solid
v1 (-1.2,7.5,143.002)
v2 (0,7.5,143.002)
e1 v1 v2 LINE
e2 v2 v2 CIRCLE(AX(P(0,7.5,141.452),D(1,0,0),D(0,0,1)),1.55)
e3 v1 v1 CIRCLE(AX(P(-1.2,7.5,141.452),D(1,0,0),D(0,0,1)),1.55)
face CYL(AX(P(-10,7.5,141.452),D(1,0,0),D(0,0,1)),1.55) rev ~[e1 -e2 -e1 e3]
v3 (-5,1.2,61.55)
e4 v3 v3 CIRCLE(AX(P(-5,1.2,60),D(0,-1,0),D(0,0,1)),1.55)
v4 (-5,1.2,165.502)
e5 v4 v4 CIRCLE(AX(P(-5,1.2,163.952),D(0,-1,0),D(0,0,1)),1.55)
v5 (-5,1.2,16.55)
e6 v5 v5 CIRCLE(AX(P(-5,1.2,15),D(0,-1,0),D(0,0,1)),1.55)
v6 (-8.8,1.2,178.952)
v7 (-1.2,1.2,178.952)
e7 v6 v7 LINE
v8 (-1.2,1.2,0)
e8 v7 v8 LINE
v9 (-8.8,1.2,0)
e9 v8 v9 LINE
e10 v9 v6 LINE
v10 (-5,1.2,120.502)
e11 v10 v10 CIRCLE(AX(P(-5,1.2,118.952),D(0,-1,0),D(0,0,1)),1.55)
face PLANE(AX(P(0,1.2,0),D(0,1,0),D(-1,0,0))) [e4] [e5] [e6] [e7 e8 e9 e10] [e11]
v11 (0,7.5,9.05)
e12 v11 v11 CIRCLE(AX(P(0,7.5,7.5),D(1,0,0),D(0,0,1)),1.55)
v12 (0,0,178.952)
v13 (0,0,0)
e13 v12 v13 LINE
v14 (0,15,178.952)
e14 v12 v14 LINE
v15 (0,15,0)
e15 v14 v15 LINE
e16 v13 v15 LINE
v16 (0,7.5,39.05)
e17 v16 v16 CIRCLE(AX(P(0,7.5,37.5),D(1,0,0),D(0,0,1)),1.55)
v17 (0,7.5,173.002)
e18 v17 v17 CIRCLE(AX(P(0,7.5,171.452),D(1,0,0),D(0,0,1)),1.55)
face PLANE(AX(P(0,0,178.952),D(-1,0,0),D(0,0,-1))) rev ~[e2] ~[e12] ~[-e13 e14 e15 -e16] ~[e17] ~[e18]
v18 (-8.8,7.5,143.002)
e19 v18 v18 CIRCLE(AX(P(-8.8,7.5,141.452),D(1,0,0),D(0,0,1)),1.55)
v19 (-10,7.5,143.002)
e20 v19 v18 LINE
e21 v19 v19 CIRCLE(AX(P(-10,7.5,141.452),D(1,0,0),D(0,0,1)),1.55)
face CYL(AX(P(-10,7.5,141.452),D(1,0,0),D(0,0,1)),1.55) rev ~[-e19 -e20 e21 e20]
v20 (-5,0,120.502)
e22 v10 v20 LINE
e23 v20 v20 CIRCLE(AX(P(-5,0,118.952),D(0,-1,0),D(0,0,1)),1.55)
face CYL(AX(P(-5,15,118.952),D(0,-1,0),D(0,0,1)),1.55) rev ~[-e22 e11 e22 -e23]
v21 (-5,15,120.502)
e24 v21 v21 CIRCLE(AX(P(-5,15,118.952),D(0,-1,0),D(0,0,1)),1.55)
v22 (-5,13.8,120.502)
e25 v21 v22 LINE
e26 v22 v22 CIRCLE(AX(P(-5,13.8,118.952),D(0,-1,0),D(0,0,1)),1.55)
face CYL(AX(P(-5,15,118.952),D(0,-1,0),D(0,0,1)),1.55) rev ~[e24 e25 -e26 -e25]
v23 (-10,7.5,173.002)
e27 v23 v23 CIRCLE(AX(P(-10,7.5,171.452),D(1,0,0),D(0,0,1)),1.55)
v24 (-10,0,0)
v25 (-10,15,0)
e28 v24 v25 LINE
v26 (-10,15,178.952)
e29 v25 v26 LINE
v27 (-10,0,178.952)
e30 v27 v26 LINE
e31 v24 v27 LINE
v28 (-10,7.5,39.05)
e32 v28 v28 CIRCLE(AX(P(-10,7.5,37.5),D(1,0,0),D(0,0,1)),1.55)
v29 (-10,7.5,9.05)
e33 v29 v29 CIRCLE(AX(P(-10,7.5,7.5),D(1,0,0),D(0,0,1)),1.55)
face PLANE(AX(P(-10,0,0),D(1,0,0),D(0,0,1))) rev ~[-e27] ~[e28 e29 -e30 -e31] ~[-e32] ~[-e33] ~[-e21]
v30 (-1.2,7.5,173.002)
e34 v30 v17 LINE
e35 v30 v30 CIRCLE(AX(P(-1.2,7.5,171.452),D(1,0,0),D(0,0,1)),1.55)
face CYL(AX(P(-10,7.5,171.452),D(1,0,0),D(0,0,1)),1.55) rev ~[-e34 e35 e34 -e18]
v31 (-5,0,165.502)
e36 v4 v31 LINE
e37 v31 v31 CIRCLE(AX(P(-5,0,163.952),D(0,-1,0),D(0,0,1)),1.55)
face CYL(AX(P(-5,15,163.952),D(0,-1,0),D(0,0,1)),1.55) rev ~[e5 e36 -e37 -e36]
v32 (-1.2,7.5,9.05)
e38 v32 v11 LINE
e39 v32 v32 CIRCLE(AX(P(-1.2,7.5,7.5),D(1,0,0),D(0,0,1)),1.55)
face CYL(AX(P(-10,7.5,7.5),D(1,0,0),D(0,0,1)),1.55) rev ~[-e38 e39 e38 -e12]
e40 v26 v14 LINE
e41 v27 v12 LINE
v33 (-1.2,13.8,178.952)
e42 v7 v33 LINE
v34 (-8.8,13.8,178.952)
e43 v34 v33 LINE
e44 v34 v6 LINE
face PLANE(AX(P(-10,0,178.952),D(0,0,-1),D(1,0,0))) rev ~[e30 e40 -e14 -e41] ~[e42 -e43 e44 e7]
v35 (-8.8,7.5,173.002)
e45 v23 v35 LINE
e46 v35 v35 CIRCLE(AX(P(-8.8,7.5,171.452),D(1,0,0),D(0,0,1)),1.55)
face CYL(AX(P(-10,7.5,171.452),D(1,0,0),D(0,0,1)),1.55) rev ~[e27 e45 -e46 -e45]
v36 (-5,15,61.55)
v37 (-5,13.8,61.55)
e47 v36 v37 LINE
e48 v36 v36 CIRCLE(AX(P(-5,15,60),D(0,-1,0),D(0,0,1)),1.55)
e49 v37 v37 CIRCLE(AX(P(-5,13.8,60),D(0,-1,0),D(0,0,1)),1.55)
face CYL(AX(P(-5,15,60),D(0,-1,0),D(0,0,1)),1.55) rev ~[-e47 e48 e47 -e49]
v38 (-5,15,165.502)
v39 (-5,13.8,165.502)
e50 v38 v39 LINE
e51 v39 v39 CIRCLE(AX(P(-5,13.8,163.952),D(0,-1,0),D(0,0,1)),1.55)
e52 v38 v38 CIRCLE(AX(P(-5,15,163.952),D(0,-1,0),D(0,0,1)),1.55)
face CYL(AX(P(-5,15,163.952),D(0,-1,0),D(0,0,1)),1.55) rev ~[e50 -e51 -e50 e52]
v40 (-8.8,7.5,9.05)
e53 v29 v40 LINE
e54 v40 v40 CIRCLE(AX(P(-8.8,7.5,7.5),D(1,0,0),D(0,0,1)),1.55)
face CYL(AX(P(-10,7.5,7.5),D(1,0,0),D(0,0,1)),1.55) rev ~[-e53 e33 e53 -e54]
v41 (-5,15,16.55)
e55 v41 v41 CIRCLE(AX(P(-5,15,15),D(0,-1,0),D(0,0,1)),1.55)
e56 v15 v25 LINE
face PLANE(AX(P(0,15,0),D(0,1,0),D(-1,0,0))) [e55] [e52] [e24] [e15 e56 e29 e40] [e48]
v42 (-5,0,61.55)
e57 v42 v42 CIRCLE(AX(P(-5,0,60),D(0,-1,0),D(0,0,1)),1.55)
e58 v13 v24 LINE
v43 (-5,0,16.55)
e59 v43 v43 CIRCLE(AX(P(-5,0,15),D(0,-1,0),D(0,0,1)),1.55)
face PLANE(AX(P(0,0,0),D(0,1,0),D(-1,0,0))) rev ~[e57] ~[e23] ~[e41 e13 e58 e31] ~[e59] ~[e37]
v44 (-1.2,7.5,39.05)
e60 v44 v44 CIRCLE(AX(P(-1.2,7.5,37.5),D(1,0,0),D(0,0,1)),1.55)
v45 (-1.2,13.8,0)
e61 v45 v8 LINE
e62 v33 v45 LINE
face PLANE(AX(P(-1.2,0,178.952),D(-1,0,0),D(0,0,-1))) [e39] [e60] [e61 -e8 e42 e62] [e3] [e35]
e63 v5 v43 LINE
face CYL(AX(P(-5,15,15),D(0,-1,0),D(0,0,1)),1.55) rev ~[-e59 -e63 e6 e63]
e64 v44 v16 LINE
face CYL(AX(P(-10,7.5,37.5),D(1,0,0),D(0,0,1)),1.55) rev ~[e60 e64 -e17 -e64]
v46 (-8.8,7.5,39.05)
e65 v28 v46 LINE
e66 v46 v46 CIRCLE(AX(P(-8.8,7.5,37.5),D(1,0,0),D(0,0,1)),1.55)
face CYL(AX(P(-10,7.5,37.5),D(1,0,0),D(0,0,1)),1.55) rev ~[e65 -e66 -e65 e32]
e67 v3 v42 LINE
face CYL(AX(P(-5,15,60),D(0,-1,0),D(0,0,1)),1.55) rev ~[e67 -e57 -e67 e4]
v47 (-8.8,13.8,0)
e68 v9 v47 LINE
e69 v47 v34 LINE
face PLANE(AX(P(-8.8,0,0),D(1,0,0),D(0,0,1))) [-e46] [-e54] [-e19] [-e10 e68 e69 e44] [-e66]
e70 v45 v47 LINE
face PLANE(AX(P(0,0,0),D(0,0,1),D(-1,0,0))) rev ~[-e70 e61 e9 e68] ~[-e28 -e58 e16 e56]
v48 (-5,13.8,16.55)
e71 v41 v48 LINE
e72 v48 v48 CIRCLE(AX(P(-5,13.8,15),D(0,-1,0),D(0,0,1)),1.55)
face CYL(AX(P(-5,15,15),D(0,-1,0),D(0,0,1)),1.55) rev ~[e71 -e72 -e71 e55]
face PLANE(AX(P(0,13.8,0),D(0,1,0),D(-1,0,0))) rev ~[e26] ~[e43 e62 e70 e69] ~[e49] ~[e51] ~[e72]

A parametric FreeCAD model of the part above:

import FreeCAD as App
import Part
import Sketcher

V = App.Vector


def faces_at(feature, points):
    """Names of the faces that lie closest to the given points."""
    faces = feature.Shape.Faces
    near = lambda p: min(range(len(faces)), key=lambda i: faces[i].distToShape(Part.Vertex(*p))[0])
    return sorted({f"Face{near(p) + 1}" for p in points})


def add_polygon(sketch, points):
    """Adds a closed chain of lines whose ends are joined by coincident constraints."""
    first, n = sketch.GeometryCount, len(points)
    for a, b in zip(points, points[1:] + points[:1]):
        sketch.addGeometry(Part.LineSegment(App.Vector(*a, 0), App.Vector(*b, 0)), False)
    for i in range(n):
        sketch.addConstraint(Sketcher.Constraint("Coincident", first + i, 2, first + (i + 1) % n, 1))

doc = App.newDocument("Part")
body = doc.addObject("PartDesign::Body", "Body")

# Sketch on XZ plane
sketch1 = body.newObject("Sketcher::SketchObject", "Sketch")
sketch1.AttachmentSupport = (doc.getObject("XZ_Plane"), [""])
sketch1.MapMode = "FlatFace"
add_polygon(sketch1, [(0, 179), (0, 0), (-10, 0), (-10, 179)])  # lines 0-3
sketch1.addConstraint([
    Sketcher.Constraint("Vertical", 0),
    Sketcher.Constraint("Horizontal", 1),
    Sketcher.Constraint("Vertical", 2),
    Sketcher.Constraint("Horizontal", 3),
    Sketcher.Constraint("Coincident", 0, 2, -1, 1),
    Sketcher.Constraint("DistanceX", 1, 2, 1, 1, 10.0),
    Sketcher.Constraint("DistanceY", 0, 2, 0, 1, 178.952),
])
pad1 = body.newObject("PartDesign::Pad", "Pad")
pad1.Profile = sketch1
pad1.Length = 15
pad1.Reversed = True
doc.recompute()

thickness = body.newObject("PartDesign::Thickness", "Thickness")
thickness.Base = (pad1, faces_at(pad1, [(-3.333, 5, 0), (-6.667, 5, 178.952)]))
thickness.Value = 1.2
thickness.Reversed = True
thickness.Join = "Intersection"

# Sketch on YZ plane
sketch2 = body.newObject("Sketcher::SketchObject", "Sketch001")
sketch2.AttachmentSupport = (doc.getObject("YZ_Plane"), [""])
sketch2.MapMode = "FlatFace"
sketch2.AttachmentOffset = App.Placement(V(0, 0, -10), App.Rotation())
sketch2.addGeometry([
    Part.Circle(V(7.5, 171.5, 0), V(0, 0, 1), 1.6),
    Part.Circle(V(7.5, 141.5, 0), V(0, 0, 1), 1.6),
    Part.Circle(V(7.5, 7.5, 0), V(0, 0, 1), 1.6),
    Part.Circle(V(7.5, 37.5, 0), V(0, 0, 1), 1.6),
], False)
sketch2.addConstraint([
    Sketcher.Constraint("Equal", 0, 1),
    Sketcher.Constraint("Equal", 1, 2),
    Sketcher.Constraint("Equal", 2, 3),
    Sketcher.Constraint("Vertical", 0, 3, 1, 3),
    Sketcher.Constraint("Vertical", 1, 3, 2, 3),
    Sketcher.Constraint("Vertical", 2, 3, 3, 3),
    Sketcher.Constraint("Diameter", 0, 3.1),
    Sketcher.Constraint("DistanceY", 1, 3, 0, 3, 30.0),
    Sketcher.Constraint("DistanceY", 2, 3, 3, 3, 30.0),
    Sketcher.Constraint("DistanceX", -1, 1, 0, 3, 7.5),
    Sketcher.Constraint("DistanceY", -1, 1, 2, 3, 7.5),
    Sketcher.Constraint("DistanceY", -1, 1, 0, 3, 171.452),
])
doc.recompute()
hole = body.newObject("PartDesign::Hole", "Hole")
hole.Profile = sketch2
hole.ThreadType = "None"
hole.Diameter = 3.1
hole.DepthType = "ThroughAll"
hole.Reversed = True

# Sketch on XZ plane
sketch3 = body.newObject("Sketcher::SketchObject", "Sketch002")
sketch3.AttachmentSupport = (doc.getObject("XZ_Plane"), [""])
sketch3.MapMode = "FlatFace"
sketch3.AttachmentOffset = App.Placement(V(0, 0, -15), App.Rotation())
sketch3.addGeometry([
    Part.Circle(V(-5, 15, 0), V(0, 0, 1), 1.6),
    Part.Circle(V(-5, 60, 0), V(0, 0, 1), 1.6),
    Part.Circle(V(-5, 164, 0), V(0, 0, 1), 1.6),
    Part.Circle(V(-5, 119, 0), V(0, 0, 1), 1.6),
], False)
sketch3.addConstraint([
    Sketcher.Constraint("Equal", 0, 1),
    Sketcher.Constraint("Equal", 1, 2),
    Sketcher.Constraint("Equal", 2, 3),
    Sketcher.Constraint("Vertical", 0, 3, 1, 3),
    Sketcher.Constraint("Vertical", 1, 3, 2, 3),
    Sketcher.Constraint("Vertical", 2, 3, 3, 3),
    Sketcher.Constraint("Diameter", 0, 3.1),
    Sketcher.Constraint("DistanceX", 0, 3, -1, 1, 5.0),
    Sketcher.Constraint("DistanceY", -1, 1, 0, 3, 15.0),
    Sketcher.Constraint("DistanceY", -1, 1, 1, 3, 60.0),
    Sketcher.Constraint("DistanceY", 3, 3, 2, 3, 45.0),
    Sketcher.Constraint("DistanceY", -1, 1, 2, 3, 163.952),
])
doc.recompute()
hole2 = body.newObject("PartDesign::Hole", "Hole001")
hole2.Profile = sketch3
hole2.ThreadType = "None"
hole2.Diameter = 3.1
hole2.DepthType = "ThroughAll"
hole2.Reversed = True

doc.recompute()
